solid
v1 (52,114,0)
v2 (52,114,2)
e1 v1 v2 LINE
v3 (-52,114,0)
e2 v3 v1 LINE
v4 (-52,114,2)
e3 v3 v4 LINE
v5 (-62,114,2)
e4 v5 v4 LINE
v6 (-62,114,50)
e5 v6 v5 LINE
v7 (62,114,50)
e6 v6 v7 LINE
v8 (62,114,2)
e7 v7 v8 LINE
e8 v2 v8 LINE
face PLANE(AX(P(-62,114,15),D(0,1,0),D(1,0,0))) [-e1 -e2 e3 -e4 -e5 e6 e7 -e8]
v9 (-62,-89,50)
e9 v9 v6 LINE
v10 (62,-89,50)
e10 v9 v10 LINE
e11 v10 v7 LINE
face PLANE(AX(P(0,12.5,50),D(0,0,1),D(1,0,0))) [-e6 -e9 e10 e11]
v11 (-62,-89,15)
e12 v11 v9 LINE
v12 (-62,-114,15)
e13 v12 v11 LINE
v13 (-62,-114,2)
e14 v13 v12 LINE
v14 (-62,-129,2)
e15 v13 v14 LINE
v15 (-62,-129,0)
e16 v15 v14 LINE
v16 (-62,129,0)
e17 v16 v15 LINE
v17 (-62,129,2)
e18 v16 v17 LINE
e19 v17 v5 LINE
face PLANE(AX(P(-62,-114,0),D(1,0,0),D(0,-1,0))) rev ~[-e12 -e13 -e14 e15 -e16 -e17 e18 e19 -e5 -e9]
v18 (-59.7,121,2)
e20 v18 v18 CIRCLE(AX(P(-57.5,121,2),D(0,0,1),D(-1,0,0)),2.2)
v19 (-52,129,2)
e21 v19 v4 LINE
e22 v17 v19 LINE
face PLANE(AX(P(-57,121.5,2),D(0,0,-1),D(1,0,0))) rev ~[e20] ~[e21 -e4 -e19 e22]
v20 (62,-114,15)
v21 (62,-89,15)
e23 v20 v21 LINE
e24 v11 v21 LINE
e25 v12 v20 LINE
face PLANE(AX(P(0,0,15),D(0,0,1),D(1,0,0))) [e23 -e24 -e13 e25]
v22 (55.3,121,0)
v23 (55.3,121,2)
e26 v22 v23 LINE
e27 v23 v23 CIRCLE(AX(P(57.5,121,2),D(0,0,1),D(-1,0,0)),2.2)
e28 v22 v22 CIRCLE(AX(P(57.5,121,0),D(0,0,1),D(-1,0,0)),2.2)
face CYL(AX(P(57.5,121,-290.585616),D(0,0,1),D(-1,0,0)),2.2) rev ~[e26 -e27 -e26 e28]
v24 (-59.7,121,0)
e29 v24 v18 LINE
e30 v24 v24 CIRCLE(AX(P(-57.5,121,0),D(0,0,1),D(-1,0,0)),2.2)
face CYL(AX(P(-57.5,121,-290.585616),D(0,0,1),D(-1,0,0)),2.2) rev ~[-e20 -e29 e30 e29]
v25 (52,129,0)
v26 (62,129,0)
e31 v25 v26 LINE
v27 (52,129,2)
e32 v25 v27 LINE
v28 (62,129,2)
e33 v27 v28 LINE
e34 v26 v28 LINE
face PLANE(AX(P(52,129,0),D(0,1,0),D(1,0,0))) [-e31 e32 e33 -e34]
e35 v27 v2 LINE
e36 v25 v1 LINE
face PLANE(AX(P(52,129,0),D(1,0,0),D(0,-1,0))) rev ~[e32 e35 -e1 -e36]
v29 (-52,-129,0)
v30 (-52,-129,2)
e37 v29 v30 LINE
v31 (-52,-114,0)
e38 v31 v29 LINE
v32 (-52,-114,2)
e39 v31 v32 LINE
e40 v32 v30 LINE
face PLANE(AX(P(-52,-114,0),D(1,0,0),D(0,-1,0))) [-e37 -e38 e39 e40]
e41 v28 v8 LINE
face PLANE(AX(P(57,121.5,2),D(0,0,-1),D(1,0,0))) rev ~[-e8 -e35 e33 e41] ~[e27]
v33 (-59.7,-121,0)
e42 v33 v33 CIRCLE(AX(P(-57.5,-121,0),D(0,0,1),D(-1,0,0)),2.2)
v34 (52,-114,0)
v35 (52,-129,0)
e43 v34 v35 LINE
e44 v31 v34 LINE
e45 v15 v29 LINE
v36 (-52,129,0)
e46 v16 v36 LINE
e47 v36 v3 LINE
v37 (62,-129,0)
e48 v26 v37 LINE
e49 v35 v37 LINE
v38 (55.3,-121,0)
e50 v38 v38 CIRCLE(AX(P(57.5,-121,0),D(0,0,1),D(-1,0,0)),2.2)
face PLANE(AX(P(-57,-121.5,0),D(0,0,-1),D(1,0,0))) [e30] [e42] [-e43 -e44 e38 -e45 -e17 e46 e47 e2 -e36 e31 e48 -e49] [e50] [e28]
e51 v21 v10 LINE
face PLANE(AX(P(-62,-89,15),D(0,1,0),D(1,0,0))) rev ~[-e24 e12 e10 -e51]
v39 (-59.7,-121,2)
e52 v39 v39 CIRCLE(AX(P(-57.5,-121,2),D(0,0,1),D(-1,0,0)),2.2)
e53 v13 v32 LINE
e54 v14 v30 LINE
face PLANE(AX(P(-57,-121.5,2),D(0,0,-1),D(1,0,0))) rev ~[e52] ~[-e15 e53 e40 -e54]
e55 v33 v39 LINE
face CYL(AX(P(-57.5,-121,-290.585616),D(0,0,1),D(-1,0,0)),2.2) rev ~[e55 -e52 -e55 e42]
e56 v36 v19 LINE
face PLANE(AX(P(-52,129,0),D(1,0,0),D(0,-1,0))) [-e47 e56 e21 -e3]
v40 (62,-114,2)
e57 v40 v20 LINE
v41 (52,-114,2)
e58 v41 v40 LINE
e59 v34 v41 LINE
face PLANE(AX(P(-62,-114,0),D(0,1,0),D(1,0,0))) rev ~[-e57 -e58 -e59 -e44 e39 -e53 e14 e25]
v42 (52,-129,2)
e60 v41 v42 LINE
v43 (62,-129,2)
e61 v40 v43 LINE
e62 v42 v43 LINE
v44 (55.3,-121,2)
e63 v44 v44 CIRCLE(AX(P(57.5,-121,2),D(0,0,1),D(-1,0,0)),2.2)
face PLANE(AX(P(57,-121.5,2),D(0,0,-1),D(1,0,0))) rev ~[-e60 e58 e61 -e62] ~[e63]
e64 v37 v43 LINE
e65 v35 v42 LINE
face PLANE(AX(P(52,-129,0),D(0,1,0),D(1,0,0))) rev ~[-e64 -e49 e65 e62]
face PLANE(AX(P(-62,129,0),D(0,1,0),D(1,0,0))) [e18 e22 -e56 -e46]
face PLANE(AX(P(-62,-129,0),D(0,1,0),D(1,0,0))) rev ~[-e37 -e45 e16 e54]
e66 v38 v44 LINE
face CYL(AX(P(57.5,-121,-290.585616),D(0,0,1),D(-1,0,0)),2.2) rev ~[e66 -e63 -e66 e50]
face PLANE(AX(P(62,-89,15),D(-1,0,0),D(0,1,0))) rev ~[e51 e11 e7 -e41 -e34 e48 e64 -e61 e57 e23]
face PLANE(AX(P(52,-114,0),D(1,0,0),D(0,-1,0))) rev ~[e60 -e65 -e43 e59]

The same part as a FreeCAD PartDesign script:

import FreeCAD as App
import Part
import Sketcher
from FreeCAD import Vector

doc = App.newDocument("Part")
body = doc.addObject("PartDesign::Body", "Body")

sketch1 = body.newObject("Sketcher::SketchObject", "Sketch")
sketch1.AttachmentSupport = (doc.getObject("XY_Plane"), [""])
sketch1.MapMode = "FlatFace"
sketch1.addGeometry([
    Part.LineSegment(Vector(-62, 114, 0), Vector(-62, -114, 0)),
    Part.LineSegment(Vector(-62, -114, 0), Vector(62, -114, 0)),
    Part.LineSegment(Vector(62, -114, 0), Vector(62, 114, 0)),
    Part.LineSegment(Vector(62, 114, 0), Vector(-62, 114, 0)),
], False)
sketch1.addConstraint([
    Sketcher.Constraint("Coincident", 0, 2, 1, 1),
    Sketcher.Constraint("Coincident", 1, 2, 2, 1),
    Sketcher.Constraint("Coincident", 2, 2, 3, 1),
    Sketcher.Constraint("Coincident", 3, 2, 0, 1),
    Sketcher.Constraint("Vertical", 0),
    Sketcher.Constraint("Horizontal", 1),
    Sketcher.Constraint("Vertical", 2),
    Sketcher.Constraint("Horizontal", 3),
    Sketcher.Constraint("Symmetric", 0, 2, 2, 2, -1, 1),
    Sketcher.Constraint("DistanceX", 1, 1, 1, 2, 124.0),
    Sketcher.Constraint("DistanceY", 0, 2, 0, 1, 228.0),
])
pad1 = body.newObject("PartDesign::Pad", "Pad")
pad1.Profile = sketch1
pad1.Length = 15

sketch2 = body.newObject("Sketcher::SketchObject", "Sketch001")
sketch2.AttachmentSupport = (doc.getObject("XY_Plane"), [""])
sketch2.MapMode = "FlatFace"
sketch2.AttachmentOffset = App.Placement(Vector(0, 0, 15), App.Rotation())
sketch2.addGeometry([
    Part.LineSegment(Vector(-62, 114, 0), Vector(-62, -89, 0)),
    Part.LineSegment(Vector(-62, -89, 0), Vector(62, -89, 0)),
    Part.LineSegment(Vector(62, -89, 0), Vector(62, 114, 0)),
    Part.LineSegment(Vector(62, 114, 0), Vector(-62, 114, 0)),
], False)
sketch2.addConstraint([
    Sketcher.Constraint("Coincident", 0, 2, 1, 1),
    Sketcher.Constraint("Coincident", 1, 2, 2, 1),
    Sketcher.Constraint("Coincident", 2, 2, 3, 1),
    Sketcher.Constraint("Coincident", 3, 2, 0, 1),
    Sketcher.Constraint("Vertical", 0),
    Sketcher.Constraint("Horizontal", 1),
    Sketcher.Constraint("Vertical", 2),
    Sketcher.Constraint("Horizontal", 3),
    Sketcher.Constraint("DistanceX", 1, 1, 1, 2, 124.0),
    Sketcher.Constraint("DistanceY", 0, 2, 0, 1, 203.0),
    Sketcher.Constraint("DistanceX", 0, 2, -1, 1, 62.0),
    Sketcher.Constraint("DistanceY", 0, 2, -1, 1, 89.0),
])
pad2 = body.newObject("PartDesign::Pad", "Pad001")
pad2.Profile = sketch2
pad2.Length = 35

sketch3 = body.newObject("Sketcher::SketchObject", "Sketch002")
sketch3.AttachmentSupport = (doc.getObject("XY_Plane"), [""])
sketch3.MapMode = "FlatFace"
sketch3.addGeometry([
    Part.LineSegment(Vector(-62, -129, 0), Vector(-62, -114, 0)),
    Part.LineSegment(Vector(-62, -114, 0), Vector(-52, -114, 0)),
    Part.LineSegment(Vector(-52, -114, 0), Vector(-52, -129, 0)),
    Part.LineSegment(Vector(-52, -129, 0), Vector(-62, -129, 0)),
    Part.LineSegment(Vector(52, -129, 0), Vector(52, -114, 0)),
    Part.LineSegment(Vector(52, -114, 0), Vector(62, -114, 0)),
    Part.LineSegment(Vector(62, -114, 0), Vector(62, -129, 0)),
    Part.LineSegment(Vector(62, -129, 0), Vector(52, -129, 0)),
    Part.LineSegment(Vector(52, 114, 0), Vector(52, 129, 0)),
    Part.LineSegment(Vector(52, 129, 0), Vector(62, 129, 0)),
    Part.LineSegment(Vector(62, 129, 0), Vector(62, 114, 0)),
    Part.LineSegment(Vector(62, 114, 0), Vector(52, 114, 0)),
    Part.LineSegment(Vector(-62, 114, 0), Vector(-62, 129, 0)),
    Part.LineSegment(Vector(-62, 129, 0), Vector(-52, 129, 0)),
    Part.LineSegment(Vector(-52, 129, 0), Vector(-52, 114, 0)),
    Part.LineSegment(Vector(-52, 114, 0), Vector(-62, 114, 0)),
], False)
sketch3.addConstraint([
    Sketcher.Constraint("Coincident", 0, 2, 1, 1),
    Sketcher.Constraint("Coincident", 1, 2, 2, 1),
    Sketcher.Constraint("Coincident", 2, 2, 3, 1),
    Sketcher.Constraint("Coincident", 3, 2, 0, 1),
    Sketcher.Constraint("Coincident", 4, 2, 5, 1),
    Sketcher.Constraint("Coincident", 5, 2, 6, 1),
    Sketcher.Constraint("Coincident", 6, 2, 7, 1),
    Sketcher.Constraint("Coincident", 7, 2, 4, 1),
    Sketcher.Constraint("Coincident", 8, 2, 9, 1),
    Sketcher.Constraint("Coincident", 9, 2, 10, 1),
    Sketcher.Constraint("Coincident", 10, 2, 11, 1),
    Sketcher.Constraint("Coincident", 11, 2, 8, 1),
    Sketcher.Constraint("Coincident", 12, 2, 13, 1),
    Sketcher.Constraint("Coincident", 13, 2, 14, 1),
    Sketcher.Constraint("Coincident", 14, 2, 15, 1),
    Sketcher.Constraint("Coincident", 15, 2, 12, 1),
    Sketcher.Constraint("Vertical", 0),
    Sketcher.Constraint("Horizontal", 1),
    Sketcher.Constraint("Vertical", 2),
    Sketcher.Constraint("Horizontal", 3),
    Sketcher.Constraint("Vertical", 4),
    Sketcher.Constraint("Horizontal", 5),
    Sketcher.Constraint("Vertical", 6),
    Sketcher.Constraint("Horizontal", 7),
    Sketcher.Constraint("Vertical", 8),
    Sketcher.Constraint("Horizontal", 9),
    Sketcher.Constraint("Vertical", 10),
    Sketcher.Constraint("Horizontal", 11),
    Sketcher.Constraint("Vertical", 12),
    Sketcher.Constraint("Horizontal", 13),
    Sketcher.Constraint("Vertical", 14),
    Sketcher.Constraint("Horizontal", 15),
    Sketcher.Constraint("Symmetric", 2, 2, 8, 2, -1, 1),
    Sketcher.Constraint("Symmetric", 0, 2, 10, 2, -1, 1),
    Sketcher.Constraint("Symmetric", 6, 2, 12, 2, -1, 1),
    Sketcher.Constraint("Symmetric", 4, 2, 14, 2, -1, 1),
    Sketcher.Constraint("Symmetric", 1, 2, 4, 2, -2),
    Sketcher.Constraint("Symmetric", 3, 2, 6, 2, -2),
    Sketcher.Constraint("DistanceX", 1, 1, 1, 2, 10.0),
    Sketcher.Constraint("DistanceY", 0, 1, 0, 2, 15.0),
    Sketcher.Constraint("DistanceX", 0, 2, -1, 1, 62.0),
    Sketcher.Constraint("DistanceY", 0, 2, -1, 1, 114.0),
])
pad3 = body.newObject("PartDesign::Pad", "Pad002")
pad3.Profile = sketch3
pad3.Length = 2

sketch4 = body.newObject("Sketcher::SketchObject", "Sketch003")
sketch4.AttachmentSupport = (doc.getObject("XY_Plane"), [""])
sketch4.MapMode = "FlatFace"
sketch4.addGeometry([
    Part.Circle(Vector(57.5, 121, 0), Vector(0, 0, 1), 2.2),
    Part.Circle(Vector(-57.5, 121, 0), Vector(0, 0, 1), 2.2),
    Part.Circle(Vector(-57.5, -121, 0), Vector(0, 0, 1), 2.2),
    Part.Circle(Vector(57.5, -121, 0), Vector(0, 0, 1), 2.2),
], False)
sketch4.addConstraint([
    Sketcher.Constraint("Equal", 0, 1),
    Sketcher.Constraint("Equal", 1, 2),
    Sketcher.Constraint("Equal", 2, 3),
    Sketcher.Constraint("Symmetric", 0, 3, 2, 3, -1, 1),
    Sketcher.Constraint("Symmetric", 1, 3, 3, 3, -1, 1),
    Sketcher.Constraint("Symmetric", 0, 3, 1, 3, -2),
    Sketcher.Constraint("Diameter", 0, 4.4),
    Sketcher.Constraint("DistanceY", -1, 1, 0, 3, 121.0),
    Sketcher.Constraint("DistanceX", 1, 3, 0, 3, 115.0),
])
doc.recompute()
hole = body.newObject("PartDesign::Hole", "Hole")
hole.Profile = sketch4
hole.ThreadType = "None"
hole.Diameter = 4.4
hole.DepthType = "ThroughAll"
hole.Reversed = True

doc.recompute()
